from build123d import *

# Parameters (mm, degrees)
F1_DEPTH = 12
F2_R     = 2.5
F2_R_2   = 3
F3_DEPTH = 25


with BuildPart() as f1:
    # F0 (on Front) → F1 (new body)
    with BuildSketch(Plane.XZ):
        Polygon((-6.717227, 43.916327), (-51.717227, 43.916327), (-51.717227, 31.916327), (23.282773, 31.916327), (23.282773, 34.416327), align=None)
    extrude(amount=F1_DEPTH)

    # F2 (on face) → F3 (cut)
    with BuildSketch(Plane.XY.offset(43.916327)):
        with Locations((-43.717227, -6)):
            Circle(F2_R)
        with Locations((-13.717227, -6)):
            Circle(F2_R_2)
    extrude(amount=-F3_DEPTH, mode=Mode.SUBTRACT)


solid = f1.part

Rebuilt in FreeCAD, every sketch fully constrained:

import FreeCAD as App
import Part
import Sketcher


def add_polygon(sketch, points):
    """Adds a closed chain of lines whose ends are joined by coincident constraints."""
    first, n = sketch.GeometryCount, len(points)
    for a, b in zip(points, points[1:] + points[:1]):
        sketch.addGeometry(Part.LineSegment(App.Vector(*a, 0), App.Vector(*b, 0)), False)
    for i in range(n):
        sketch.addConstraint(Sketcher.Constraint("Coincident", first + i, 2, first + (i + 1) % n, 1))

doc = App.newDocument("Part")
body = doc.addObject("PartDesign::Body", "Body")

# Sketch on XZ plane
sketch1 = doc.addObject("Sketcher::SketchObject", "Sketch")
body.addObject(sketch1)
sketch1.AttachmentSupport = (doc.XZ_Plane, [""])
sketch1.MapMode = "FlatFace"
add_polygon(sketch1, [(-6.7, 43.9), (-51.7, 43.9), (-51.7, 31.9), (23.3, 31.9), (23.3, 34.4)])  # lines 0-4
sketch1.addConstraint([
    Sketcher.Constraint("Horizontal", 0),
    Sketcher.Constraint("Vertical", 1),
    Sketcher.Constraint("Horizontal", 2),
    Sketcher.Constraint("Vertical", 3),
    Sketcher.Constraint("DistanceX", 0, 2, 0, 1, 45.0),
    Sketcher.Constraint("DistanceX", 2, 1, 2, 2, 75.0),
    Sketcher.Constraint("DistanceY", 1, 2, 1, 1, 12.0),
    Sketcher.Constraint("DistanceY", 3, 1, 3, 2, 2.5),
    Sketcher.Constraint("DistanceX", 0, 2, -1, 1, 51.717227),
    Sketcher.Constraint("DistanceY", -1, 1, 0, 2, 43.916327),
])
pad1 = doc.addObject("PartDesign::Pad", "Pad")
body.addObject(pad1)
pad1.Profile = sketch1
pad1.Length = 12

# Sketch on XY plane
sketch2 = doc.addObject("Sketcher::SketchObject", "Sketch001")
body.addObject(sketch2)
sketch2.AttachmentSupport = (doc.XY_Plane, [""])
sketch2.MapMode = "FlatFace"
sketch2.AttachmentOffset = App.Placement(App.Vector(0, 0, 43.916327), App.Rotation())
sketch2.addGeometry([
    Part.Circle(App.Vector(-43.7, -6, 0), App.Vector(0, 0, 1), 2.5),
    Part.Circle(App.Vector(-13.7, -6, 0), App.Vector(0, 0, 1), 3),
], False)
sketch2.addConstraint([
    Sketcher.Constraint("Horizontal", 0, 3, 1, 3),
    Sketcher.Constraint("Diameter", 0, 5.0),
    Sketcher.Constraint("Diameter", 1, 6.0),
    Sketcher.Constraint("DistanceY", 0, 3, -1, 1, 6.0),
    Sketcher.Constraint("DistanceX", 0, 3, 1, 3, 30.0),
    Sketcher.Constraint("DistanceX", 0, 3, -1, 1, 43.717227),
])
pocket1 = doc.addObject("PartDesign::Pocket", "Pocket")
body.addObject(pocket1)
pocket1.Profile = sketch2
pocket1.Length = 25

doc.recompute()
